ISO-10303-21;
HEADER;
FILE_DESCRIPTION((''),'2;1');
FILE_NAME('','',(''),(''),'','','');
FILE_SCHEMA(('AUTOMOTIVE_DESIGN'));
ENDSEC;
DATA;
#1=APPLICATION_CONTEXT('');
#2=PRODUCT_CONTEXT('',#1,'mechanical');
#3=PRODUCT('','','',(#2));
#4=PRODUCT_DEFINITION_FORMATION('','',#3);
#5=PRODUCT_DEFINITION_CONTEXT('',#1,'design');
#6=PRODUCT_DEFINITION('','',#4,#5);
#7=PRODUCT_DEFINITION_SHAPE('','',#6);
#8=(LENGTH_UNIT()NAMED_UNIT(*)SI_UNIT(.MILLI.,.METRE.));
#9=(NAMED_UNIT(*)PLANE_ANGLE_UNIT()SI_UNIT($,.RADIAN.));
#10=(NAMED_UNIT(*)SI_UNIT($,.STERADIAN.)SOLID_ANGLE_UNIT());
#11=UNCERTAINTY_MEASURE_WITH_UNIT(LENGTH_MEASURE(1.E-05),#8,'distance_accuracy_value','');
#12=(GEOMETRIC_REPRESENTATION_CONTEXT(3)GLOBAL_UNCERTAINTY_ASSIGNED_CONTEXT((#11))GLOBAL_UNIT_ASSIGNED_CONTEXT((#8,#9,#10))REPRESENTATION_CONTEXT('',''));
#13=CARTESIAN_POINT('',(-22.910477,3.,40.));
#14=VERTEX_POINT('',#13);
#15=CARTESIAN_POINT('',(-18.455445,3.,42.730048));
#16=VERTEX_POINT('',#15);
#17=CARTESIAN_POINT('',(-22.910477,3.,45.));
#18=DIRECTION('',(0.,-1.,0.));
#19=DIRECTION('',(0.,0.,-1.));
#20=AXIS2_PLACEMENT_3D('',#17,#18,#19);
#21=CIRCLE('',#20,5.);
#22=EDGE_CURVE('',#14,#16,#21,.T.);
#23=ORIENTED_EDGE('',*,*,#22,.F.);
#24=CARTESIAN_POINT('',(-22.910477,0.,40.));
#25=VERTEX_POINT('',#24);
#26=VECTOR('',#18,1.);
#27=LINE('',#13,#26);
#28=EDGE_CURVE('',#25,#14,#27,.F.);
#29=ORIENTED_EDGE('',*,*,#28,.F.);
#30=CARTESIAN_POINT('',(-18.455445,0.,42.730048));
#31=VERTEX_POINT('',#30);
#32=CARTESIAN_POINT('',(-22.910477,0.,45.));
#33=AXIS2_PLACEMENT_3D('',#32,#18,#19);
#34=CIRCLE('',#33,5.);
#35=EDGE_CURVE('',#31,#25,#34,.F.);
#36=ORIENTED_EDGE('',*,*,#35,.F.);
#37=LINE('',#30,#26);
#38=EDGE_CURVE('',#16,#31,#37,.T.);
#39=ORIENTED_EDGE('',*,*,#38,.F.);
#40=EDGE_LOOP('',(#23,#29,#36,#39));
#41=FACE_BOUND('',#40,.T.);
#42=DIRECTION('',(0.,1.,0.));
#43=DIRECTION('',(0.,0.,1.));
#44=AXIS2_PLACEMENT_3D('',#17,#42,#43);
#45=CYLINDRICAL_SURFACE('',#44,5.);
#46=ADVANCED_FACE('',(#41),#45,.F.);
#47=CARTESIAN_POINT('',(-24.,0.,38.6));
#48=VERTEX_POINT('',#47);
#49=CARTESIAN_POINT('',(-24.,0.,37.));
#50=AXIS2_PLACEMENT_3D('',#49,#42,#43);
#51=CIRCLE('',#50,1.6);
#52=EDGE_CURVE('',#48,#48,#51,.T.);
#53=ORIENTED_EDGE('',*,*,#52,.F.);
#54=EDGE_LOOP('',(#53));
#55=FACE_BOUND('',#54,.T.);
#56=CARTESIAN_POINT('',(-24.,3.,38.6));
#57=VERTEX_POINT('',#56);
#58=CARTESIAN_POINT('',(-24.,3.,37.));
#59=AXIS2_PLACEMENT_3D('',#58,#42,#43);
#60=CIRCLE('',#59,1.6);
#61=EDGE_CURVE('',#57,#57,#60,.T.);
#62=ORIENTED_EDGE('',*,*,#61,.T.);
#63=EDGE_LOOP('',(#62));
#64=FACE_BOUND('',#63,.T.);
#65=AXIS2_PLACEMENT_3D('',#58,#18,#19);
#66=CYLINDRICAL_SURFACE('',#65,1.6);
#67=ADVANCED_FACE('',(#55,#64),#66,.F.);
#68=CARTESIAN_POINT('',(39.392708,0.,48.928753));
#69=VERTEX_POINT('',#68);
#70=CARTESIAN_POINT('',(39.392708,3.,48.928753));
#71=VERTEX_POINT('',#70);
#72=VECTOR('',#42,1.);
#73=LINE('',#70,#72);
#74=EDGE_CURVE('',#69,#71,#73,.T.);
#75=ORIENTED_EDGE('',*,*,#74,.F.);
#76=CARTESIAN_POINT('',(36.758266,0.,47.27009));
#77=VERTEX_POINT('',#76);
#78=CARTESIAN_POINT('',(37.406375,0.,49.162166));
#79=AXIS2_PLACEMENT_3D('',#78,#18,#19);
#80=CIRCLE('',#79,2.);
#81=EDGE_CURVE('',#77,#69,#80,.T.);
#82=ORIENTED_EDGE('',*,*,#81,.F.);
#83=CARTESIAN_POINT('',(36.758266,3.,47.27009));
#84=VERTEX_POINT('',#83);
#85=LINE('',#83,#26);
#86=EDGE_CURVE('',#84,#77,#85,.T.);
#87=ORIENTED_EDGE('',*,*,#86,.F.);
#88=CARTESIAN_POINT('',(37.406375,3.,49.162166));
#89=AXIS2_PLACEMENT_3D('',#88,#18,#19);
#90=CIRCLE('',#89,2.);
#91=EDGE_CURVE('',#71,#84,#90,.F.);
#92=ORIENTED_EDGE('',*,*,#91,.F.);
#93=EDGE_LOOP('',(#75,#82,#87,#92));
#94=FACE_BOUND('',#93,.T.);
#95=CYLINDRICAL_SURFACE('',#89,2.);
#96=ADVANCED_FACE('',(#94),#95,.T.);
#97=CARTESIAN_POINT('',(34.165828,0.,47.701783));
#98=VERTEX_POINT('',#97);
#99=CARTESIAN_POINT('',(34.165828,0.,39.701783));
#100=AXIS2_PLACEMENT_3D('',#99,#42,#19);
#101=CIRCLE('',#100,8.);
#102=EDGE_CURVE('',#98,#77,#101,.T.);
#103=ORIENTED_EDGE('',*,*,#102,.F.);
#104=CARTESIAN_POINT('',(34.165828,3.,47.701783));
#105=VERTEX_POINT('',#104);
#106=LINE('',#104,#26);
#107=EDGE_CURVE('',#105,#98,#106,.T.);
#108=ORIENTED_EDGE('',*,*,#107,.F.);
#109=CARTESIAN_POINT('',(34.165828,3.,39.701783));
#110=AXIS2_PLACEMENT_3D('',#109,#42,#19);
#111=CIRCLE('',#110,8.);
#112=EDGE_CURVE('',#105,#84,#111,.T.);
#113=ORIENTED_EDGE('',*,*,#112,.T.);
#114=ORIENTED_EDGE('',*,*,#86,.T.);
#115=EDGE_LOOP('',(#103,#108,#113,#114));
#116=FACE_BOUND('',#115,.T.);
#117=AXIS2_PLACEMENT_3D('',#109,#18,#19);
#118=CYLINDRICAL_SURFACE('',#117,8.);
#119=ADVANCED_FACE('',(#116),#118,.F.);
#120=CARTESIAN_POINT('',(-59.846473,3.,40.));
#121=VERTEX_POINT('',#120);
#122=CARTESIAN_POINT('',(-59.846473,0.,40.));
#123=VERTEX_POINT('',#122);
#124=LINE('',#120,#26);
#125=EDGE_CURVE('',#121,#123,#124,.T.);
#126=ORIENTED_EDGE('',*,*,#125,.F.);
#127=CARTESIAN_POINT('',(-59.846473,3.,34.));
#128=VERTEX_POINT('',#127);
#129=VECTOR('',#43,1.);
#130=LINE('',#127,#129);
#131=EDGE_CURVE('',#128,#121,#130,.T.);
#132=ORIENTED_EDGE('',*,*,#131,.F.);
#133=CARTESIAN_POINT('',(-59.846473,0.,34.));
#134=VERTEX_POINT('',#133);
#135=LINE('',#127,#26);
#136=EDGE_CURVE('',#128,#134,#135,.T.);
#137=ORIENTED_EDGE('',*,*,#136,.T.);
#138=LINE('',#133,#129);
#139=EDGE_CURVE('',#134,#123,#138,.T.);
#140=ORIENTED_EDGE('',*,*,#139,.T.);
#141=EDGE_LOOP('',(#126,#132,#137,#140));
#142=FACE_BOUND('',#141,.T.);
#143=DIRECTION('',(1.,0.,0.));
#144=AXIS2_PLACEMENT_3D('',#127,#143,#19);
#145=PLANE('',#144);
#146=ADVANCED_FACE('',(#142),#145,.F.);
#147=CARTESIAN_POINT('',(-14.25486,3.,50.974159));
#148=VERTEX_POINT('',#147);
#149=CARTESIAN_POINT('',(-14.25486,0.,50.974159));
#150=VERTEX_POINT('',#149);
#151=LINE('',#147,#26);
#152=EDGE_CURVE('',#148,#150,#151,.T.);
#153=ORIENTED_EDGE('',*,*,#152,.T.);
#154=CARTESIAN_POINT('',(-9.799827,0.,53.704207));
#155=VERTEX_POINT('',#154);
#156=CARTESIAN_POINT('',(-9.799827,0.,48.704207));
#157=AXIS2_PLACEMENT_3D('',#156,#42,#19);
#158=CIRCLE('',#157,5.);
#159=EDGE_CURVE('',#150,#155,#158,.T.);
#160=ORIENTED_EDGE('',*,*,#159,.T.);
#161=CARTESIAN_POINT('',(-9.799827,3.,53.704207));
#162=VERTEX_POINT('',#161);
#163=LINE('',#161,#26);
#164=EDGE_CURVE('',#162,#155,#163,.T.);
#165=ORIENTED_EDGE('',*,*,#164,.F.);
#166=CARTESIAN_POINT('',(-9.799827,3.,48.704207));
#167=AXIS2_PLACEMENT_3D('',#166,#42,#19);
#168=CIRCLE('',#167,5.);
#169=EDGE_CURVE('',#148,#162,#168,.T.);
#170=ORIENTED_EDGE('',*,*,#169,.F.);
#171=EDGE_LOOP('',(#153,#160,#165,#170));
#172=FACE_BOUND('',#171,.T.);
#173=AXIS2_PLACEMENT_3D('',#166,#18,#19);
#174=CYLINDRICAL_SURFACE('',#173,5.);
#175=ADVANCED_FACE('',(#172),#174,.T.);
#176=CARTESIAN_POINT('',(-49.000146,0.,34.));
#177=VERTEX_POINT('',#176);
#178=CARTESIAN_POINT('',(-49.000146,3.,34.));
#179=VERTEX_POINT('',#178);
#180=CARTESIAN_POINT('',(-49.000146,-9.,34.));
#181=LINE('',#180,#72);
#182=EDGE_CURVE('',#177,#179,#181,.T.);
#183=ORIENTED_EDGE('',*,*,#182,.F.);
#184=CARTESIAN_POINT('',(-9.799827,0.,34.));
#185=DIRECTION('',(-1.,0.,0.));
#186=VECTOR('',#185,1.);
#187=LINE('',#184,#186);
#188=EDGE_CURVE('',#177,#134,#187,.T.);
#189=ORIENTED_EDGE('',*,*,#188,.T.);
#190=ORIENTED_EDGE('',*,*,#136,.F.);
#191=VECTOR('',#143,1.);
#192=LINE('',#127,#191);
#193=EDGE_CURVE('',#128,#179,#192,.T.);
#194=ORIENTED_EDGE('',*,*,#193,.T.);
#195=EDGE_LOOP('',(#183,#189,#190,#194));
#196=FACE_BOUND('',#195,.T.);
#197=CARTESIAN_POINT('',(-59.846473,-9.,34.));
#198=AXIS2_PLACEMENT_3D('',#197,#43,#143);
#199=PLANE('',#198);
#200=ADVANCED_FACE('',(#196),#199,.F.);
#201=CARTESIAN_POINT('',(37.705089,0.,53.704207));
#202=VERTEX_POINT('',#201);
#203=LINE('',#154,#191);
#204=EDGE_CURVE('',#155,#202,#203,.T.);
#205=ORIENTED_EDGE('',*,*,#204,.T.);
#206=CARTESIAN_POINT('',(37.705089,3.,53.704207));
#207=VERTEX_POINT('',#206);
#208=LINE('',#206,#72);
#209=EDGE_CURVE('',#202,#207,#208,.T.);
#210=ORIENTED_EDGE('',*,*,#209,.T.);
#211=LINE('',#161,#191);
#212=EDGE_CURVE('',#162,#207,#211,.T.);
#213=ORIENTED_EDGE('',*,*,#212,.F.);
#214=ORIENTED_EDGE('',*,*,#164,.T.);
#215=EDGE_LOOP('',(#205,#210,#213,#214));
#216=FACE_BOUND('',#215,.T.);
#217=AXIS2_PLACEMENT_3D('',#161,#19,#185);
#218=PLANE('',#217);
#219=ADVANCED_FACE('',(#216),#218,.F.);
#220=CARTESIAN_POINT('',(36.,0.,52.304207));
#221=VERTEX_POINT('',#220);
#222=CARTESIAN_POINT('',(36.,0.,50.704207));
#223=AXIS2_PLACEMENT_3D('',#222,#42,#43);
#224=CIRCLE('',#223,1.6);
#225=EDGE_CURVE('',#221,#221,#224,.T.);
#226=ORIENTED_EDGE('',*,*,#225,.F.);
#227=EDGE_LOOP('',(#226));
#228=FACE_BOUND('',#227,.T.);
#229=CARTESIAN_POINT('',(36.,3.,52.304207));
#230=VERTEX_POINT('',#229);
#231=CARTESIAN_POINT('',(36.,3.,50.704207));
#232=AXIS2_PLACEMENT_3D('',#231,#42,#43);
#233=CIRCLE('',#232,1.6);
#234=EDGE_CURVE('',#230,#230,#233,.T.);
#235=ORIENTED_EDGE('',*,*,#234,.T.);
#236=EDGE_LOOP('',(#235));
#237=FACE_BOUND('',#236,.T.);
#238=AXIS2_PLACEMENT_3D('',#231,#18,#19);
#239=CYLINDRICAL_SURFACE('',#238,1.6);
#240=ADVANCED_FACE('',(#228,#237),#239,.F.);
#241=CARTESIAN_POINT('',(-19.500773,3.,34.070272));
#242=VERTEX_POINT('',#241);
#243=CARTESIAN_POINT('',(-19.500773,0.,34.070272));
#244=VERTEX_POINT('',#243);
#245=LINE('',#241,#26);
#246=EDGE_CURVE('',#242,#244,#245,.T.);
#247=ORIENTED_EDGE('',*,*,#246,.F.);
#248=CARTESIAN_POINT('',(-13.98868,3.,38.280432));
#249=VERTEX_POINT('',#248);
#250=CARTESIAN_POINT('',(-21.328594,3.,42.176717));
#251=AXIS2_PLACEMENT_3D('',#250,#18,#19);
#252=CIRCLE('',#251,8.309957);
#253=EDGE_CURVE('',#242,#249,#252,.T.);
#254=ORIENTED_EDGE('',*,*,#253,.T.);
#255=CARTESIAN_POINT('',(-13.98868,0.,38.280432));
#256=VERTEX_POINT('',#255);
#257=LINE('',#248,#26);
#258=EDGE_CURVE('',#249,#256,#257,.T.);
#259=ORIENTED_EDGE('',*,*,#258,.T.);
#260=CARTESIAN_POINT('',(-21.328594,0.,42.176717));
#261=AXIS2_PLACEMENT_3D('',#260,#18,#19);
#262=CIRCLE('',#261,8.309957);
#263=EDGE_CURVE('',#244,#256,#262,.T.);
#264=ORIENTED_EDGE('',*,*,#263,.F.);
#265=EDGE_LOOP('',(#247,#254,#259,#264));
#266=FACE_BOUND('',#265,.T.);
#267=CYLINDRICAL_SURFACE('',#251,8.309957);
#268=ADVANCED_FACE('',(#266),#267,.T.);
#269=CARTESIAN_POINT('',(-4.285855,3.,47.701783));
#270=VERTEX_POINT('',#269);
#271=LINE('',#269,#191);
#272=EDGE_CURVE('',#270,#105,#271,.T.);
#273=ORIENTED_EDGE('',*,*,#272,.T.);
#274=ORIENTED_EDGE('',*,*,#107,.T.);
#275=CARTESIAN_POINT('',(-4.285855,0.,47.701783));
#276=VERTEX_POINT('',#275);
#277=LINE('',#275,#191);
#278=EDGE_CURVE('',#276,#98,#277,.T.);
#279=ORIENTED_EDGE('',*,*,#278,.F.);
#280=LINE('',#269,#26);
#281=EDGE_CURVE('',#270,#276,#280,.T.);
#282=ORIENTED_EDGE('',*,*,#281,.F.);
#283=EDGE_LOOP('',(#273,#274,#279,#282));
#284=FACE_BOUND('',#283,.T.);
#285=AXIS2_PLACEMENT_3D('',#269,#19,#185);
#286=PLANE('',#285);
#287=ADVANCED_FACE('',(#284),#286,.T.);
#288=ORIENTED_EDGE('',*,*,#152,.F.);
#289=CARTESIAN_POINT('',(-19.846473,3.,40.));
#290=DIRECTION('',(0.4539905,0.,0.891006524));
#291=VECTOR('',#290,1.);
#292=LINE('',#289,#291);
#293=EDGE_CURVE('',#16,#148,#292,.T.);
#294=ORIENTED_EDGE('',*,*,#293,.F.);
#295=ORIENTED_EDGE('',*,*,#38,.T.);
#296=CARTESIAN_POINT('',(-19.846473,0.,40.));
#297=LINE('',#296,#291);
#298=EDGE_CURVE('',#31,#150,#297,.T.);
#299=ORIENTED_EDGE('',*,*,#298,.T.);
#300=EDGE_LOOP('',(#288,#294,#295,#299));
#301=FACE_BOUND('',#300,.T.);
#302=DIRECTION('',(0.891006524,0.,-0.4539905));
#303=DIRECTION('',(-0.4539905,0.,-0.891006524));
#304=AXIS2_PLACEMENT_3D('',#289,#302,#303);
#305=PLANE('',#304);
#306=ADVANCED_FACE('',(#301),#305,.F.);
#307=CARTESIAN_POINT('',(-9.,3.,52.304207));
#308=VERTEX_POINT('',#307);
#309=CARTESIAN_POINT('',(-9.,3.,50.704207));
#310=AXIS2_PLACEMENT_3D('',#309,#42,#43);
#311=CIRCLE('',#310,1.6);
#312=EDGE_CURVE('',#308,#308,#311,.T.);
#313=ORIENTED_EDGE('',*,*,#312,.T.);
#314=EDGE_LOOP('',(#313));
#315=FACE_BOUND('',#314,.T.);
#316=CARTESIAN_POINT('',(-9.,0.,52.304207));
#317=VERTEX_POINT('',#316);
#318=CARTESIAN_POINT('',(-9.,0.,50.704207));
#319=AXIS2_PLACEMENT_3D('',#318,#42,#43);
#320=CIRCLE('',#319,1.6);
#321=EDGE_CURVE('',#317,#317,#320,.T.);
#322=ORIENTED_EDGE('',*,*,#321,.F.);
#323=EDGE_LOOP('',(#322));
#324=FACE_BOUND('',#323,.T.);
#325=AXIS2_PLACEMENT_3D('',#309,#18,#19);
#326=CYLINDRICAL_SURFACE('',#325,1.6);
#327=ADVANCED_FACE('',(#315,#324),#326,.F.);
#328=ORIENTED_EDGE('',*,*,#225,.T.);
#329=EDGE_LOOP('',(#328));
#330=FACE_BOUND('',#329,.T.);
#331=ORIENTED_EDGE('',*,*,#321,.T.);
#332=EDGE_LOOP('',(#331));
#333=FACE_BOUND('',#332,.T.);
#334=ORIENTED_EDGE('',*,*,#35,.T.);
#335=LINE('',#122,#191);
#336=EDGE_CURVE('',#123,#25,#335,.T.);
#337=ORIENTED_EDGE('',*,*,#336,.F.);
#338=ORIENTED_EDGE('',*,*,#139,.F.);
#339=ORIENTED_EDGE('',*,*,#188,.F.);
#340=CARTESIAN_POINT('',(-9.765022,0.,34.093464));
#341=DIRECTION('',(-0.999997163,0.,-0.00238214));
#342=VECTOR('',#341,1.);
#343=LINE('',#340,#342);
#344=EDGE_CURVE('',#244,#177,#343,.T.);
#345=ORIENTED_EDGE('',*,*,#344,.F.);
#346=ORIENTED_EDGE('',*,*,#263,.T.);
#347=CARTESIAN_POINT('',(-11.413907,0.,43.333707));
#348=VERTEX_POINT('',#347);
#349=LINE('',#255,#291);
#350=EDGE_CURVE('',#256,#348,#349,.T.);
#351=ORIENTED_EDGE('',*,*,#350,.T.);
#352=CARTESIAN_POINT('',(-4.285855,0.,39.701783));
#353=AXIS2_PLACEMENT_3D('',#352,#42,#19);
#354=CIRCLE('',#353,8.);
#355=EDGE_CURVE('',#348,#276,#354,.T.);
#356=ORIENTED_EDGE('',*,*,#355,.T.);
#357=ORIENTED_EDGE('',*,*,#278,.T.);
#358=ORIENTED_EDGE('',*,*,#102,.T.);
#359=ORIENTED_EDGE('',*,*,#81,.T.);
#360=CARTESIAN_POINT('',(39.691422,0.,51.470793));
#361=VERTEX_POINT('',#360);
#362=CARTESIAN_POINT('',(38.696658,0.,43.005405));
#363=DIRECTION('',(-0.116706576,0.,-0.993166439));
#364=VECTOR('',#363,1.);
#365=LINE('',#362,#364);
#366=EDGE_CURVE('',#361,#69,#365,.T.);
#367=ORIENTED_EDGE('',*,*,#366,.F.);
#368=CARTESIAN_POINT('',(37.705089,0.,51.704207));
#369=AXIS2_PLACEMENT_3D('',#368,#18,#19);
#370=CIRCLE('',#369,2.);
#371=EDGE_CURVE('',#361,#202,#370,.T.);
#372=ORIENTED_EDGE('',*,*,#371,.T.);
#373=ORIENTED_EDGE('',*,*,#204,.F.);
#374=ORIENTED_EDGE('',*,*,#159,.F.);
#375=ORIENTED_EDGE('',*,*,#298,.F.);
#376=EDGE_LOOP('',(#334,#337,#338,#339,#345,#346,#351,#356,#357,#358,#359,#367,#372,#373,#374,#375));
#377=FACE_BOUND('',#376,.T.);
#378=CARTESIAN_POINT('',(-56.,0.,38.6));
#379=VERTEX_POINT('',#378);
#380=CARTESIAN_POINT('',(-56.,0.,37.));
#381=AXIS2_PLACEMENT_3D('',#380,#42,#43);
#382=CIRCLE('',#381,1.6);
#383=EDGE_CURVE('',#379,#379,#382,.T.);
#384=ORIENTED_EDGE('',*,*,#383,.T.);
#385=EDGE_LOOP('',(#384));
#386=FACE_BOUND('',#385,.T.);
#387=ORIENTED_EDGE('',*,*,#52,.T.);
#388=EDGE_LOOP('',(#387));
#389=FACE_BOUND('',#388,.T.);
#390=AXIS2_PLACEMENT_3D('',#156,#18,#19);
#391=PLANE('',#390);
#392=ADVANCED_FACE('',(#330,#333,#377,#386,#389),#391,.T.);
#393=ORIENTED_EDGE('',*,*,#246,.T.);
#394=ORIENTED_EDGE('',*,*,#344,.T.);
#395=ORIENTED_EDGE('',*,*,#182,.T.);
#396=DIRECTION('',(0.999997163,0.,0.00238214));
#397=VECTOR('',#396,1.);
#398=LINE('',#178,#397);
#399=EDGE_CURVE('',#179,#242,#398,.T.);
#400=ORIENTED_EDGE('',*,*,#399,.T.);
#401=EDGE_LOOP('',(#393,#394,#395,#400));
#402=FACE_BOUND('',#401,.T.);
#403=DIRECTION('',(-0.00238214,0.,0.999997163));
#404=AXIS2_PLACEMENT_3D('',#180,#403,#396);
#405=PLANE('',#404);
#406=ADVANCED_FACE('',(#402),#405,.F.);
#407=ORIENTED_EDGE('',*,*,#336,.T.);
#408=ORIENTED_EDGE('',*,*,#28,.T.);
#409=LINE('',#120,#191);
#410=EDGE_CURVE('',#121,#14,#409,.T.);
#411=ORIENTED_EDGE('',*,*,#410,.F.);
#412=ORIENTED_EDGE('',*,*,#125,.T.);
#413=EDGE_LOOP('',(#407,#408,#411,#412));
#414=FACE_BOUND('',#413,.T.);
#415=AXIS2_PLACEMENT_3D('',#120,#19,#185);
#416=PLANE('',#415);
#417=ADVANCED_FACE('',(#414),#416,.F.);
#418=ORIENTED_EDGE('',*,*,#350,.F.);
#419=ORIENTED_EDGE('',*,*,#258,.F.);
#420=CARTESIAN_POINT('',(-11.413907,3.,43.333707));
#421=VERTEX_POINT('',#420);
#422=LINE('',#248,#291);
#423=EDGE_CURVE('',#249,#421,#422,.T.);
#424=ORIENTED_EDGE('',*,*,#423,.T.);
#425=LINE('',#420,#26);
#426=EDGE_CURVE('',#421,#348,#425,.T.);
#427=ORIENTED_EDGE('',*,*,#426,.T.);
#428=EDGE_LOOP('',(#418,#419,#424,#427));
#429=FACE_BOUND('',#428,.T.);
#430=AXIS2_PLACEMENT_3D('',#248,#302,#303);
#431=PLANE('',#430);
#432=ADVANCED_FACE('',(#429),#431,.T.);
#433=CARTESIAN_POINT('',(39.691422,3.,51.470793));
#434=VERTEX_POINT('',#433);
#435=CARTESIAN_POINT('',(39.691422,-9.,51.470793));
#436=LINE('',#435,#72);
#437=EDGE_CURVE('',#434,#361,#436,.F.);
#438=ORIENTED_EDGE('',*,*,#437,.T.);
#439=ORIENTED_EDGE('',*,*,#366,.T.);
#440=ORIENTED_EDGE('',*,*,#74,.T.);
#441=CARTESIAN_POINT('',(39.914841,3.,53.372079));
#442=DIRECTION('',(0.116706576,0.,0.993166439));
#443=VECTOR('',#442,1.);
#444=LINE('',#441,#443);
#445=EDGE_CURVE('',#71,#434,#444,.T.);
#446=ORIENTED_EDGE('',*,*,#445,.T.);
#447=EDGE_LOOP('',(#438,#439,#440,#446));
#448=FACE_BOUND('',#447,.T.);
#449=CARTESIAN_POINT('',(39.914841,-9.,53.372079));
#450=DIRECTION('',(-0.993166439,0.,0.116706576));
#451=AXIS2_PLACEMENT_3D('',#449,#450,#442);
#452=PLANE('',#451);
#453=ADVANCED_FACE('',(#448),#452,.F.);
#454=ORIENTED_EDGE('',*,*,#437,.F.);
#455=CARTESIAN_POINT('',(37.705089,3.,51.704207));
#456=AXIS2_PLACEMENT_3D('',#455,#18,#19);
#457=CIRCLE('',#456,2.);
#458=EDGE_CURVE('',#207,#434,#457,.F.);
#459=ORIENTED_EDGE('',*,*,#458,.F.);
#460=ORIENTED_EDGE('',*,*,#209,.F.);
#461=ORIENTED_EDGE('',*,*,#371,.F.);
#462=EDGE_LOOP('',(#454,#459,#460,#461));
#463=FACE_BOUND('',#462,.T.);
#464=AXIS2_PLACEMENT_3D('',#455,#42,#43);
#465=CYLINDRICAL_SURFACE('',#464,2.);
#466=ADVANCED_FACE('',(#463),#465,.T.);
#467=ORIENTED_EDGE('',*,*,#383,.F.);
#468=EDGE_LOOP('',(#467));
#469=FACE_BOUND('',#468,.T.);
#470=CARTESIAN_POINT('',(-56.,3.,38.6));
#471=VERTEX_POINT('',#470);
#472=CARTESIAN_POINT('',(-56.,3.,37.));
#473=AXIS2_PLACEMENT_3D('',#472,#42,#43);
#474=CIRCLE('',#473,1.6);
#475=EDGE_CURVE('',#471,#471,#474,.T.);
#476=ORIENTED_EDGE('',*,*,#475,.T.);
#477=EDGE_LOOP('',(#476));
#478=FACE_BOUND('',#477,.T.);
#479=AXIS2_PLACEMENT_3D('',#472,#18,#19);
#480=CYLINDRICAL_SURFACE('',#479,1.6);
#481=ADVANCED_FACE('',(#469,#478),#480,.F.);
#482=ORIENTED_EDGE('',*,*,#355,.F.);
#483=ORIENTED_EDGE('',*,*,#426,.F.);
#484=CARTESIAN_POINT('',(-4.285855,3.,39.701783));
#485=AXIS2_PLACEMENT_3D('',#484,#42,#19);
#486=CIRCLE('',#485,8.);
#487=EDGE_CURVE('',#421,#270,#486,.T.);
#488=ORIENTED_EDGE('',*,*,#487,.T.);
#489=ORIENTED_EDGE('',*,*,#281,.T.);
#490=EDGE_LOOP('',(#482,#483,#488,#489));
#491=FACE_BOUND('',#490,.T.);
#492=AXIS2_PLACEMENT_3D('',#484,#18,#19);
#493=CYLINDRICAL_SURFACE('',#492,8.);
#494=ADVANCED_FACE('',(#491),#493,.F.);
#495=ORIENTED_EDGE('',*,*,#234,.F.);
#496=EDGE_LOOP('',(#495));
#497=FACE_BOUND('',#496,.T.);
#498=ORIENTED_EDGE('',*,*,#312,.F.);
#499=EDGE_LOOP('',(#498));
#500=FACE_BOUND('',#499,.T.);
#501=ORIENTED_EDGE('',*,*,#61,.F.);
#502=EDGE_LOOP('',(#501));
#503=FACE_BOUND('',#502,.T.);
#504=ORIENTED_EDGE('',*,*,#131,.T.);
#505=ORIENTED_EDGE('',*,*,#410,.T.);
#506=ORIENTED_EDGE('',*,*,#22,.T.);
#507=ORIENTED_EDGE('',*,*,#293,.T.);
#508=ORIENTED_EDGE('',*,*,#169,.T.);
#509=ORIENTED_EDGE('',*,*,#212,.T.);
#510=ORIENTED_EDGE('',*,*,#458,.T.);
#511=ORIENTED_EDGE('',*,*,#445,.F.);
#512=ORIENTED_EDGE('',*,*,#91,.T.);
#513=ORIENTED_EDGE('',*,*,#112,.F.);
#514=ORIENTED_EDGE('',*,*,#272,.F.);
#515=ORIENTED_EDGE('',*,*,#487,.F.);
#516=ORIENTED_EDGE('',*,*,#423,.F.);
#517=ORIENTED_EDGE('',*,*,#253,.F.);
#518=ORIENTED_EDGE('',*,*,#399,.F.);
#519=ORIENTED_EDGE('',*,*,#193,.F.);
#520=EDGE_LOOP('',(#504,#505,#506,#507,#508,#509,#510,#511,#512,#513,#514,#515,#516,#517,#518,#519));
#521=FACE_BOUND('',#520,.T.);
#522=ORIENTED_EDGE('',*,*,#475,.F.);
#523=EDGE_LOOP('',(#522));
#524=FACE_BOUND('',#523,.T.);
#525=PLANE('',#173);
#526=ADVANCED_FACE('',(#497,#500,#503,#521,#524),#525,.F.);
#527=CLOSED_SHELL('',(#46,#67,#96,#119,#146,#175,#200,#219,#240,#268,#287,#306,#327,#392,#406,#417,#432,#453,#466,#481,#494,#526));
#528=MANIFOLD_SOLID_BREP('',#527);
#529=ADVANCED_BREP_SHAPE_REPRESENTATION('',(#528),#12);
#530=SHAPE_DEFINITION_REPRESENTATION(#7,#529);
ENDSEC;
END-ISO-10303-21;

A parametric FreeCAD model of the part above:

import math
import FreeCAD as App
import Part
import Sketcher
from FreeCAD import Vector
Q = App.Units.Quantity


def edges_at(feature, points):
    """Names of the edges that pass closest to the given points."""
    edges = feature.Shape.Edges
    near = lambda p: min(range(len(edges)), key=lambda i: edges[i].distToShape(Part.Vertex(*p))[0])
    return sorted({f"Edge{near(p) + 1}" for p in points})

doc = App.newDocument("Part")
body = doc.addObject("PartDesign::Body", "Body")

# Sketch on XZ plane
sketch1 = doc.addObject("Sketcher::SketchObject", "Sketch")
body.addObject(sketch1)
sketch1.AttachmentSupport = (doc.XZ_Plane, [""])
sketch1.MapMode = "FlatFace"
sketch1.addGeometry([
    Part.LineSegment(Vector(-49.9, -18, 0), Vector(-59.8, 34, 0)),  # 0
    Part.LineSegment(Vector(-59.8, 34, 0), Vector(-59.8, 40, 0)),  # 1
    Part.LineSegment(Vector(-59.8, 40, 0), Vector(-19.8, 40, 0)),  # 2
    Part.LineSegment(Vector(-19.8, 40, 0), Vector(-14.3, 51, 0)),  # 3
    Part.ArcOfCircle(Part.Circle(Vector(-9.8, 48.7, 0), Vector(0, 0, 1), 5), math.radians(90), math.radians(153)),  # 4
    Part.LineSegment(Vector(-9.8, 53.7, 0), Vector(38.3, 53.7, 0)),  # 5
    Part.ArcOfCircle(Part.Circle(Vector(38.3, 49.7, 0), Vector(0, 0, 1), 4), math.radians(43), math.radians(90)),  # 6
    Part.LineSegment(Vector(41.2, 52.4, 0), Vector(75.1, 16.1, 0)),  # 7
    Part.LineSegment(Vector(75.1, 16.1, 0), Vector(75.1, -5.9, 0)),  # 8
    Part.LineSegment(Vector(75.1, -5.9, 0), Vector(36.6, -18, 0)),  # 9
    Part.LineSegment(Vector(36.6, -18, 0), Vector(-49.9, -18, 0)),  # 10
    Part.Circle(Vector(36, 50.7, 0), Vector(0, 0, 1), 1.6),  # 11
    Part.Circle(Vector(-9, 50.7, 0), Vector(0, 0, 1), 1.6),  # 12
    Part.Circle(Vector(-24, 37, 0), Vector(0, 0, 1), 1.6),  # 13
    Part.Circle(Vector(-56, 37, 0), Vector(0, 0, 1), 1.6),  # 14
    Part.ArcOfCircle(Part.Circle(Vector(-41.8, 26, 0), Vector(0, 0, 1), 6), math.radians(-169), math.radians(-90)),  # 15
    Part.LineSegment(Vector(-41.8, 20, 0), Vector(46.1, 20, 0)),  # 16
    Part.ArcOfCircle(Part.Circle(Vector(46.1, 26, 0), Vector(0, 0, 1), 6), math.radians(-90), math.radians(35)),  # 17
    Part.LineSegment(Vector(51, 29.4, 0), Vector(40.7, 44.3, 0)),  # 18
    Part.ArcOfCircle(Part.Circle(Vector(34.2, 39.7, 0), Vector(0, 0, 1), 8), math.radians(35), math.radians(90)),  # 19
    Part.LineSegment(Vector(34.2, 47.7, 0), Vector(-4.3, 47.7, 0)),  # 20
    Part.ArcOfCircle(Part.Circle(Vector(-4.3, 39.7, 0), Vector(0, 0, 1), 8), math.radians(90), math.radians(153)),  # 21
    Part.LineSegment(Vector(-11.4, 43.3, 0), Vector(-14, 38.3, 0)),  # 22
    Part.ArcOfCircle(Part.Circle(Vector(-21.3, 42.2, 0), Vector(0, 0, 1), 8.3), math.radians(-80), math.radians(-28)),  # 23
    Part.LineSegment(Vector(-19.8, 34, 0), Vector(-49, 34, 0)),  # 24
    Part.LineSegment(Vector(-49, 34, 0), Vector(-47.7, 24.9, 0)),  # 25
    Part.Circle(Vector(70, 16, 0), Vector(0, 0, 1), 1.6),  # 26
    Part.Circle(Vector(50, 16, 0), Vector(0, 0, 1), 1.6),  # 27
    Part.Circle(Vector(60, 7, 0), Vector(0, 0, 1), 1.6),  # 28
    Part.Circle(Vector(8, 16, 0), Vector(0, 0, 1), 1.6),  # 29
    Part.Circle(Vector(70, -2, 0), Vector(0, 0, 1), 1.6),  # 30
    Part.Circle(Vector(50, -2, 0), Vector(0, 0, 1), 1.6),  # 31
    Part.Circle(Vector(42, 0, 0), Vector(0, 0, 1), 1),  # 32
    Part.LineSegment(Vector(16, 6.5, 0), Vector(16, -6.5, 0)),  # 33
    Part.LineSegment(Vector(16, -6.5, 0), Vector(40, -6.5, 0)),  # 34
    Part.LineSegment(Vector(40, -6.5, 0), Vector(40, 6.5, 0)),  # 35
    Part.LineSegment(Vector(40, 6.5, 0), Vector(16, 6.5, 0)),  # 36
    Part.Circle(Vector(14, 0, 0), Vector(0, 0, 1), 1),  # 37
    Part.Circle(Vector(18, -14, 0), Vector(0, 0, 1), 1.6),  # 38
    Part.Circle(Vector(8, -14, 0), Vector(0, 0, 1), 1.6),  # 39
    Part.Circle(Vector(-8, 16, 0), Vector(0, 0, 1), 1.6),  # 40
    Part.Circle(Vector(-14, 8, 0), Vector(0, 0, 1), 1),  # 41
    Part.Circle(Vector(-47, 16, 0), Vector(0, 0, 1), 1.6),  # 42
    Part.LineSegment(Vector(-40, 14.5, 0), Vector(-40, 1.5, 0)),  # 43
    Part.LineSegment(Vector(-40, 1.5, 0), Vector(-16, 1.5, 0)),  # 44
    Part.LineSegment(Vector(-16, 1.5, 0), Vector(-16, 14.5, 0)),  # 45
    Part.LineSegment(Vector(-16, 14.5, 0), Vector(-40, 14.5, 0)),  # 46
    Part.Circle(Vector(-42, 8, 0), Vector(0, 0, 1), 1),  # 47
    Part.Circle(Vector(-8, -14, 0), Vector(0, 0, 1), 1.6),  # 48
    Part.Circle(Vector(-14, -8, 0), Vector(0, 0, 1), 1),  # 49
    Part.LineSegment(Vector(-40, -1.5, 0), Vector(-40, -14.5, 0)),  # 50
    Part.LineSegment(Vector(-40, -14.5, 0), Vector(-16, -14.5, 0)),  # 51
    Part.LineSegment(Vector(-16, -14.5, 0), Vector(-16, -1.5, 0)),  # 52
    Part.LineSegment(Vector(-16, -1.5, 0), Vector(-40, -1.5, 0)),  # 53
    Part.Circle(Vector(-42, -8, 0), Vector(0, 0, 1), 1),  # 54
    Part.Circle(Vector(-47, -14, 0), Vector(0, 0, 1), 1.6),  # 55
], False)
sketch1.addConstraint([
    Sketcher.Constraint("Coincident", 0, 2, 1, 1),
    Sketcher.Constraint("Coincident", 1, 2, 2, 1),
    Sketcher.Constraint("Coincident", 2, 2, 3, 1),
    Sketcher.Constraint("Tangent", 3, 2, 4, 2),
    Sketcher.Constraint("Tangent", 4, 1, 5, 1),
    Sketcher.Constraint("Tangent", 5, 2, 6, 2),
    Sketcher.Constraint("Tangent", 6, 1, 7, 1),
    Sketcher.Constraint("Coincident", 7, 2, 8, 1),
    Sketcher.Constraint("Coincident", 8, 2, 9, 1),
    Sketcher.Constraint("Coincident", 9, 2, 10, 1),
    Sketcher.Constraint("Coincident", 10, 2, 0, 1),
    Sketcher.Constraint("Tangent", 15, 2, 16, 1),
    Sketcher.Constraint("Tangent", 16, 2, 17, 1),
    Sketcher.Constraint("Tangent", 17, 2, 18, 1),
    Sketcher.Constraint("Tangent", 18, 2, 19, 1),
    Sketcher.Constraint("Tangent", 19, 2, 20, 1),
    Sketcher.Constraint("Tangent", 20, 2, 21, 1),
    Sketcher.Constraint("Tangent", 21, 2, 22, 1),
    Sketcher.Constraint("Coincident", 22, 2, 23, 2),
    Sketcher.Constraint("Coincident", 23, 1, 24, 1),
    Sketcher.Constraint("Coincident", 24, 2, 25, 1),
    Sketcher.Constraint("Coincident", 25, 2, 15, 1),
    Sketcher.Constraint("Coincident", 33, 2, 34, 1),
    Sketcher.Constraint("Coincident", 34, 2, 35, 1),
    Sketcher.Constraint("Coincident", 35, 2, 36, 1),
    Sketcher.Constraint("Coincident", 36, 2, 33, 1),
    Sketcher.Constraint("Coincident", 43, 2, 44, 1),
    Sketcher.Constraint("Coincident", 44, 2, 45, 1),
    Sketcher.Constraint("Coincident", 45, 2, 46, 1),
    Sketcher.Constraint("Coincident", 46, 2, 43, 1),
    Sketcher.Constraint("Coincident", 50, 2, 51, 1),
    Sketcher.Constraint("Coincident", 51, 2, 52, 1),
    Sketcher.Constraint("Coincident", 52, 2, 53, 1),
    Sketcher.Constraint("Coincident", 53, 2, 50, 1),
    Sketcher.Constraint("Vertical", 1),
    Sketcher.Constraint("Horizontal", 2),
    Sketcher.Constraint("Horizontal", 5),
    Sketcher.Constraint("Vertical", 8),
    Sketcher.Constraint("Horizontal", 10),
    Sketcher.Constraint("Horizontal", 16),
    Sketcher.Constraint("Horizontal", 20),
    Sketcher.Constraint("Horizontal", 24),
    Sketcher.Constraint("Vertical", 33),
    Sketcher.Constraint("Horizontal", 34),
    Sketcher.Constraint("Vertical", 35),
    Sketcher.Constraint("Horizontal", 36),
    Sketcher.Constraint("Vertical", 43),
    Sketcher.Constraint("Horizontal", 44),
    Sketcher.Constraint("Vertical", 45),
    Sketcher.Constraint("Horizontal", 46),
    Sketcher.Constraint("Vertical", 50),
    Sketcher.Constraint("Horizontal", 51),
    Sketcher.Constraint("Vertical", 52),
    Sketcher.Constraint("Horizontal", 53),
    Sketcher.Constraint("Equal", 11, 12),
    Sketcher.Constraint("Equal", 12, 13),
    Sketcher.Constraint("Equal", 13, 14),
    Sketcher.Constraint("Equal", 15, 17),
    Sketcher.Constraint("Equal", 19, 21),
    Sketcher.Constraint("Equal", 14, 26),
    Sketcher.Constraint("Equal", 26, 27),
    Sketcher.Constraint("Equal", 27, 28),
    Sketcher.Constraint("Equal", 28, 29),
    Sketcher.Constraint("Equal", 29, 30),
    Sketcher.Constraint("Equal", 30, 31),
    Sketcher.Constraint("Equal", 32, 37),
    Sketcher.Constraint("Equal", 31, 38),
    Sketcher.Constraint("Equal", 38, 39),
    Sketcher.Constraint("Equal", 39, 40),
    Sketcher.Constraint("Equal", 37, 41),
    Sketcher.Constraint("Equal", 40, 42),
    Sketcher.Constraint("Equal", 41, 47),
    Sketcher.Constraint("Equal", 42, 48),
    Sketcher.Constraint("Equal", 47, 49),
    Sketcher.Constraint("Equal", 49, 54),
    Sketcher.Constraint("Equal", 48, 55),
    Sketcher.Constraint("Symmetric", 29, 3, 40, 3, -2),
    Sketcher.Constraint("Symmetric", 39, 3, 48, 3, -2),
    Sketcher.Constraint("Symmetric", 41, 3, 49, 3, -1),
    Sketcher.Constraint("Symmetric", 47, 3, 54, 3, -1),
    Sketcher.Constraint("Symmetric", 46, 2, 50, 2, -1),
    Sketcher.Constraint("Symmetric", 44, 2, 52, 2, -1),
    Sketcher.Constraint("PointOnObject", 32, 3, -1),
    Sketcher.Constraint("PointOnObject", 37, 3, -1),
    Sketcher.Constraint("Parallel", 3, 22),
    Sketcher.Constraint("Horizontal", 11, 3, 12, 3),
    Sketcher.Constraint("Horizontal", 13, 3, 14, 3),
    Sketcher.Constraint("Horizontal", 26, 3, 27, 3),
    Sketcher.Constraint("Horizontal", 27, 3, 29, 3),
    Sketcher.Constraint("Horizontal", 30, 3, 31, 3),
    Sketcher.Constraint("Horizontal", 38, 3, 39, 3),
    Sketcher.Constraint("Horizontal", 40, 3, 42, 3),
    Sketcher.Constraint("Horizontal", 41, 3, 47, 3),
    Sketcher.Constraint("Horizontal", 48, 3, 55, 3),
    Sketcher.Constraint("Horizontal", 0, 2, 23, 1),
    Sketcher.Constraint("Vertical", 26, 3, 30, 3),
    Sketcher.Constraint("Vertical", 27, 3, 31, 3),
    Sketcher.Constraint("Vertical", 29, 3, 39, 3),
    Sketcher.Constraint("Vertical", 42, 3, 55, 3),
    Sketcher.Constraint("Vertical", 2, 2, 23, 1),
    Sketcher.Constraint("Equal", 36, 44),
    Sketcher.Constraint("Equal", 35, 43),
    Sketcher.Constraint("Diameter", 32, 2.0),
    Sketcher.Constraint("Radius", 4, 5.0),
    Sketcher.Constraint("Radius", 6, 4.0),
    Sketcher.Constraint("Radius", 15, 6.0),
    Sketcher.Constraint("Radius", 19, 8.0),
    Sketcher.Constraint("Diameter", 11, 3.2),
    Sketcher.Constraint("DistanceX", 2, 1, 2, 2, 40.0),
    Sketcher.Constraint("DistanceX", 34, 1, 34, 2, 24.0),
    Sketcher.Constraint("DistanceY", 1, 1, 1, 2, 6.0),
    Sketcher.Constraint("DistanceY", 8, 2, 8, 1, 22.0),
    Sketcher.Constraint("DistanceY", 33, 2, 33, 1, 13.0),
    Sketcher.Constraint("Angle", 3, Q("63 deg")),
    Sketcher.Constraint("DistanceX", -1, 1, 11, 3, 36.0),
    Sketcher.Constraint("DistanceX", 12, 3, -1, 1, 9.0),
    Sketcher.Constraint("DistanceX", 13, 3, -1, 1, 24.0),
    Sketcher.Constraint("DistanceY", -1, 1, 13, 3, 37.0),
    Sketcher.Constraint("DistanceX", 14, 3, -1, 1, 56.0),
    Sketcher.Constraint("DistanceY", -1, 1, 15, 3, 26.0),
    Sketcher.Constraint("DistanceX", -1, 1, 26, 3, 70.0),
    Sketcher.Constraint("DistanceY", -1, 1, 26, 3, 16.0),
    Sketcher.Constraint("DistanceX", -1, 1, 27, 3, 50.0),
    Sketcher.Constraint("DistanceX", -1, 1, 28, 3, 60.0),
    Sketcher.Constraint("DistanceY", -1, 1, 28, 3, 7.0),
    Sketcher.Constraint("DistanceX", -1, 1, 29, 3, 8.0),
    Sketcher.Constraint("DistanceY", 30, 3, -1, 1, 2.0),
    Sketcher.Constraint("DistanceX", -1, 1, 32, 3, 42.0),
    Sketcher.Constraint("DistanceX", -1, 1, 37, 3, 14.0),
    Sketcher.Constraint("DistanceX", -1, 1, 38, 3, 18.0),
    Sketcher.Constraint("DistanceY", 38, 3, -1, 1, 14.0),
    Sketcher.Constraint("DistanceX", 41, 3, -1, 1, 14.0),
    Sketcher.Constraint("DistanceY", -1, 1, 41, 3, 8.0),
    Sketcher.Constraint("DistanceX", 42, 3, -1, 1, 47.0),
    Sketcher.Constraint("DistanceX", 47, 3, -1, 1, 42.0),
    Sketcher.Constraint("DistanceY", -1, 1, 0, 2, 34.0),
    Sketcher.Constraint("DistanceY", 9, 2, -1, 1, 18.0),
    Sketcher.Constraint("DistanceX", -1, 1, 33, 2, 16.0),
    Sketcher.Constraint("DistanceX", 43, 2, -1, 1, 40.0),
    Sketcher.Constraint("DistanceY", 33, 2, -1, 1, 6.5),
    Sketcher.Constraint("DistanceY", -1, 1, 43, 2, 1.5),
    Sketcher.Constraint("Angle", 9, Q("-162.579988 deg")),
    Sketcher.Constraint("DistanceX", -1, 1, 6, 3, 38.318999),
    Sketcher.Constraint("Radius", 23, 8.309957),
    Sketcher.Constraint("DistanceX", 16, 1, 16, 2, 87.873128),
    Sketcher.Constraint("Distance", 0, 52.945028),
    Sketcher.Constraint("Distance", 9, 40.350131),
    Sketcher.Constraint("Distance", 25, 9.19498),
    Sketcher.Constraint("DistanceX", 5, 1, 5, 2, 48.118826),
    Sketcher.Constraint("DistanceX", 10, 2, 10, 1, 86.500495),
    Sketcher.Constraint("DistanceX", 20, 2, 20, 1, 38.451683),
    Sketcher.Constraint("DistanceX", 24, 2, 24, 1, 29.153673),
    Sketcher.Constraint("DistanceY", -1, 1, 3, 2, 50.974159),
    Sketcher.Constraint("DistanceX", -1, 1, 17, 2, 51.026061),
    Sketcher.Constraint("DistanceY", -1, 1, 18, 2, 44.258552),
    Sketcher.Constraint("DistanceX", 22, 2, -1, 1, 13.98868),
    Sketcher.Constraint("DistanceY", -1, 1, 22, 2, 38.280432),
    Sketcher.Constraint("DistanceY", -1, 1, 11, 3, 50.704207),
])
pad1 = doc.addObject("PartDesign::Pad", "Pad")
body.addObject(pad1)
pad1.Profile = sketch1
pad1.Length = 3
pad1.Reversed = True

# Sketch on XZ plane
sketch2 = doc.addObject("Sketcher::SketchObject", "Sketch001")
body.addObject(sketch2)
sketch2.AttachmentSupport = (doc.XZ_Plane, [""])
sketch2.MapMode = "FlatFace"
sketch2.addGeometry([
    Part.LineSegment(Vector(46.1, -15, 0), Vector(46.1, 20, 0)),  # 0
    Part.LineSegment(Vector(46.1, 20, 0), Vector(71.5, 20, 0)),  # 1
    Part.LineSegment(Vector(71.5, 20, 0), Vector(75.1, 16.1, 0)),  # 2
    Part.LineSegment(Vector(75.1, 16.1, 0), Vector(75.1, -5.9, 0)),  # 3
    Part.LineSegment(Vector(75.1, -5.9, 0), Vector(46.1, -15, 0)),  # 4
    Part.Circle(Vector(50, 16, 0), Vector(0, 0, 1), 1.6),  # 5
    Part.Circle(Vector(70, 16, 0), Vector(0, 0, 1), 1.6),  # 6
    Part.Circle(Vector(50, -2, 0), Vector(0, 0, 1), 1.6),  # 7
    Part.Circle(Vector(60, 7, 0), Vector(0, 0, 1), 1.6),  # 8
    Part.Circle(Vector(70, -2, 0), Vector(0, 0, 1), 1.6),  # 9
    Part.LineSegment(Vector(-12, -18, 0), Vector(-12, -8, 0)),  # 10
    Part.LineSegment(Vector(-12, -8, 0), Vector(12, -8, 0)),  # 11
    Part.LineSegment(Vector(12, -8, 0), Vector(12, -18, 0)),  # 12
    Part.LineSegment(Vector(12, -18, 0), Vector(-12, -18, 0)),  # 13
    Part.Circle(Vector(-8, -14, 0), Vector(0, 0, 1), 1.6),  # 14
    Part.Circle(Vector(8, -14, 0), Vector(0, 0, 1), 1.6),  # 15
    Part.LineSegment(Vector(-12, 10, 0), Vector(-12, 20, 0)),  # 16
    Part.LineSegment(Vector(-12, 20, 0), Vector(12, 20, 0)),  # 17
    Part.LineSegment(Vector(12, 20, 0), Vector(12, 10, 0)),  # 18
    Part.LineSegment(Vector(12, 10, 0), Vector(-12, 10, 0)),  # 19
    Part.Circle(Vector(-8, 16, 0), Vector(0, 0, 1), 1.6),  # 20
    Part.Circle(Vector(8, 16, 0), Vector(0, 0, 1), 1.6),  # 21
], False)
sketch2.addConstraint([
    Sketcher.Constraint("Coincident", 0, 2, 1, 1),
    Sketcher.Constraint("Coincident", 1, 2, 2, 1),
    Sketcher.Constraint("Coincident", 2, 2, 3, 1),
    Sketcher.Constraint("Coincident", 3, 2, 4, 1),
    Sketcher.Constraint("Coincident", 4, 2, 0, 1),
    Sketcher.Constraint("Coincident", 10, 2, 11, 1),
    Sketcher.Constraint("Coincident", 11, 2, 12, 1),
    Sketcher.Constraint("Coincident", 12, 2, 13, 1),
    Sketcher.Constraint("Coincident", 13, 2, 10, 1),
    Sketcher.Constraint("Coincident", 16, 2, 17, 1),
    Sketcher.Constraint("Coincident", 17, 2, 18, 1),
    Sketcher.Constraint("Coincident", 18, 2, 19, 1),
    Sketcher.Constraint("Coincident", 19, 2, 16, 1),
    Sketcher.Constraint("Horizontal", 1),
    Sketcher.Constraint("Vertical", 3),
    Sketcher.Constraint("Vertical", 10),
    Sketcher.Constraint("Horizontal", 11),
    Sketcher.Constraint("Vertical", 12),
    Sketcher.Constraint("Horizontal", 13),
    Sketcher.Constraint("Vertical", 16),
    Sketcher.Constraint("Horizontal", 17),
    Sketcher.Constraint("Vertical", 18),
    Sketcher.Constraint("Horizontal", 19),
    Sketcher.Constraint("Equal", 5, 6),
    Sketcher.Constraint("Equal", 6, 7),
    Sketcher.Constraint("Equal", 7, 8),
    Sketcher.Constraint("Equal", 8, 9),
    Sketcher.Constraint("Equal", 9, 14),
    Sketcher.Constraint("Equal", 14, 15),
    Sketcher.Constraint("Equal", 15, 20),
    Sketcher.Constraint("Equal", 20, 21),
    Sketcher.Constraint("Symmetric", 14, 3, 15, 3, -2),
    Sketcher.Constraint("Symmetric", 20, 3, 21, 3, -2),
    Sketcher.Constraint("Horizontal", 5, 3, 6, 3),
    Sketcher.Constraint("Horizontal", 7, 3, 9, 3),
    Sketcher.Constraint("Horizontal", 6, 3, 20, 3),
    Sketcher.Constraint("Vertical", 5, 3, 7, 3),
    Sketcher.Constraint("Vertical", 6, 3, 9, 3),
    Sketcher.Constraint("Vertical", 14, 3, 20, 3),
    Sketcher.Constraint("Vertical", 13, 2, 16, 2),
    Sketcher.Constraint("Vertical", 12, 2, 17, 2),
    Sketcher.Constraint("Equal", 12, 16),
    Sketcher.Constraint("Diameter", 5, 3.2),
    Sketcher.Constraint("DistanceX", 11, 1, 11, 2, 24.0),
    Sketcher.Constraint("DistanceY", 3, 2, 3, 1, 22.0),
    Sketcher.Constraint("DistanceY", 10, 1, 10, 2, 10.0),
    Sketcher.Constraint("DistanceX", -1, 1, 5, 3, 50.0),
    Sketcher.Constraint("DistanceY", -1, 1, 5, 3, 16.0),
    Sketcher.Constraint("DistanceX", -1, 1, 6, 3, 70.0),
    Sketcher.Constraint("DistanceY", 7, 3, -1, 1, 2.0),
    Sketcher.Constraint("DistanceX", -1, 1, 8, 3, 60.0),
    Sketcher.Constraint("DistanceY", -1, 1, 8, 3, 7.0),
    Sketcher.Constraint("DistanceX", 14, 3, -1, 1, 8.0),
    Sketcher.Constraint("DistanceY", 14, 3, -1, 1, 14.0),
    Sketcher.Constraint("DistanceY", -1, 1, 0, 2, 20.0),
    Sketcher.Constraint("DistanceX", 10, 2, -1, 1, 12.0),
    Sketcher.Constraint("DistanceY", 10, 2, -1, 1, 8.0),
    Sketcher.Constraint("Angle", 4, Q("-162.579988 deg")),
    Sketcher.Constraint("DistanceX", 1, 1, 1, 2, 25.365449),
    Sketcher.Constraint("DistanceX", -1, 1, 1, 2, 71.459961),
    Sketcher.Constraint("DistanceX", -1, 1, 2, 2, 75.112242),
    Sketcher.Constraint("DistanceY", 4, 2, 3, 2, 9.10248),
    Sketcher.Constraint("Distance", 0, 35.022698),
    Sketcher.Constraint("DistanceY", -1, 1, 16, 2, 19.961093),
])
pad2 = doc.addObject("PartDesign::Pad", "Pad001")
body.addObject(pad2)
pad2.Profile = sketch2
pad2.Length = 9

# Sketch on YZ plane
sketch3 = doc.addObject("Sketcher::SketchObject", "Sketch002")
body.addObject(sketch3)
sketch3.AttachmentSupport = (doc.YZ_Plane, [""])
sketch3.MapMode = "FlatFace"
sketch3.AttachmentOffset = App.Placement(Vector(0, 0, 75.112242), App.Rotation())
sketch3.addGeometry(Part.Circle(Vector(-9, 7, 0), Vector(0, 0, 1), 6), False)
sketch3.addConstraint([
    Sketcher.Constraint("Diameter", 0, 12.0),
    Sketcher.Constraint("DistanceX", 0, 3, -1, 1, 9.0),
    Sketcher.Constraint("DistanceY", -1, 1, 0, 3, 7.384625),
])
pocket1 = doc.addObject("PartDesign::Pocket", "Pocket")
body.addObject(pocket1)
pocket1.Profile = sketch3
pocket1.Length = 20

# Sketch on XY plane
sketch4 = doc.addObject("Sketcher::SketchObject", "Sketch003")
body.addObject(sketch4)
sketch4.AttachmentSupport = (doc.XY_Plane, [""])
sketch4.MapMode = "FlatFace"
sketch4.AttachmentOffset = App.Placement(Vector(0, 0, -18), App.Rotation())
sketch4.addGeometry(Part.Circle(Vector(0, -9, 0), Vector(0, 0, 1), 4), False)
sketch4.addConstraint([
    Sketcher.Constraint("PointOnObject", 0, 3, -2),
    Sketcher.Constraint("Diameter", 0, 8.0),
    Sketcher.Constraint("DistanceY", 0, 3, -1, 1, 9.0),
])
pocket2 = doc.addObject("PartDesign::Pocket", "Pocket001")
body.addObject(pocket2)
pocket2.Profile = sketch4
pocket2.Type = "ThroughAll"
pocket2.Reversed = True

# Sketch on XY plane
sketch5 = doc.addObject("Sketcher::SketchObject", "Sketch004")
body.addObject(sketch5)
sketch5.AttachmentSupport = (doc.XY_Plane, [""])
sketch5.MapMode = "FlatFace"
sketch5.AttachmentOffset = App.Placement(Vector(0, 0, -18), App.Rotation())
sketch5.addGeometry(Part.Circle(Vector(0, -9, 0), Vector(0, 0, 1), 6), False)
sketch5.addConstraint([
    Sketcher.Constraint("PointOnObject", 0, 3, -2),
    Sketcher.Constraint("Diameter", 0, 11.2),
    Sketcher.Constraint("DistanceY", 0, 3, -1, 1, 9.0),
])
pocket3 = doc.addObject("PartDesign::Pocket", "Pocket002")
body.addObject(pocket3)
pocket3.Profile = sketch5
pocket3.Length = 5
pocket3.Reversed = True

# Sketch on XY plane
sketch6 = doc.addObject("Sketcher::SketchObject", "Sketch005")
body.addObject(sketch6)
sketch6.AttachmentSupport = (doc.XY_Plane, [""])
sketch6.MapMode = "FlatFace"
sketch6.AttachmentOffset = App.Placement(Vector(0, 0, 19.961093), App.Rotation())
sketch6.addGeometry(Part.Circle(Vector(0, -9, 0), Vector(0, 0, 1), 6), False)
sketch6.addConstraint([
    Sketcher.Constraint("PointOnObject", 0, 3, -2),
    Sketcher.Constraint("Diameter", 0, 11.2),
    Sketcher.Constraint("DistanceY", 0, 3, -1, 1, 9.0),
])
pocket4 = doc.addObject("PartDesign::Pocket", "Pocket003")
body.addObject(pocket4)
pocket4.Profile = sketch6
pocket4.Length = 6
doc.recompute()

fillet = doc.addObject("PartDesign::Fillet", "Fillet")
body.addObject(fillet)
fillet.Base = (pocket4, edges_at(pocket4, [(-49.888, 1.5, -18)]))
fillet.Radius = 5
doc.recompute()

fillet2 = doc.addObject("PartDesign::Fillet", "Fillet001")
body.addObject(fillet2)
fillet2.Base = (fillet, edges_at(fillet, [(-19.846, 1.5, 40)]))
fillet2.Radius = 5

# Sketch on XZ plane
sketch7 = doc.addObject("Sketcher::SketchObject", "Sketch006")
body.addObject(sketch7)
sketch7.AttachmentSupport = (doc.XZ_Plane, [""])
sketch7.MapMode = "FlatFace"
sketch7.AttachmentOffset = App.Placement(Vector(0, 0, -3), App.Rotation())
sketch7.addGeometry([
    Part.LineSegment(Vector(-60, 34, 0), Vector(-49, 34, 0)),  # 0
    Part.LineSegment(Vector(-49, 34, 0), Vector(39, 34, 0)),  # 1
    Part.LineSegment(Vector(39, 34, 0), Vector(39, 46, 0)),  # 2
    Part.LineSegment(Vector(39, 46, 0), Vector(40, 53, 0)),  # 3
    Part.ArcOfCircle(Part.Circle(Vector(8, -47, 0), Vector(0, 0, 1), 105), math.radians(130), math.radians(432)),  # 4
], False)
sketch7.addConstraint([
    Sketcher.Constraint("Coincident", 0, 2, 1, 1),
    Sketcher.Constraint("Coincident", 1, 2, 2, 1),
    Sketcher.Constraint("Coincident", 2, 2, 3, 1),
    Sketcher.Constraint("Coincident", 3, 2, 4, 2),
    Sketcher.Constraint("Coincident", 4, 1, 0, 1),
    Sketcher.Constraint("Horizontal", 0),
    Sketcher.Constraint("Vertical", 2),
    Sketcher.Constraint("DistanceY", -1, 1, 0, 2, 34.0),
    Sketcher.Constraint("Radius", 4, 105.023361),
    Sketcher.Constraint("DistanceY", 2, 1, 2, 2, 11.82591),
    Sketcher.Constraint("DistanceX", 2, 2, 3, 2, 0.862099),
    Sketcher.Constraint("Distance", 1, 88.053138),
    Sketcher.Constraint("DistanceX", 0, 1, 0, 2, 10.846327),
    Sketcher.Constraint("DistanceY", 4, 3, -1, 1, 46.541611),
    Sketcher.Constraint("DistanceX", -1, 1, 3, 2, 39.914841),
    Sketcher.Constraint("Distance", 3, 7.386892),
])
pocket5 = doc.addObject("PartDesign::Pocket", "Pocket004")
body.addObject(pocket5)
pocket5.Profile = sketch7
pocket5.Type = "ThroughAll"
pocket5.Reversed = True
doc.recompute()

fillet3 = doc.addObject("PartDesign::Fillet", "Fillet002")
body.addObject(fillet3)
fillet3.Base = (pocket5, edges_at(pocket5, [(39.915, 1.5, 53.372), (39.053, 1.5, 46.036)]))
fillet3.Radius = 2

doc.recompute()
